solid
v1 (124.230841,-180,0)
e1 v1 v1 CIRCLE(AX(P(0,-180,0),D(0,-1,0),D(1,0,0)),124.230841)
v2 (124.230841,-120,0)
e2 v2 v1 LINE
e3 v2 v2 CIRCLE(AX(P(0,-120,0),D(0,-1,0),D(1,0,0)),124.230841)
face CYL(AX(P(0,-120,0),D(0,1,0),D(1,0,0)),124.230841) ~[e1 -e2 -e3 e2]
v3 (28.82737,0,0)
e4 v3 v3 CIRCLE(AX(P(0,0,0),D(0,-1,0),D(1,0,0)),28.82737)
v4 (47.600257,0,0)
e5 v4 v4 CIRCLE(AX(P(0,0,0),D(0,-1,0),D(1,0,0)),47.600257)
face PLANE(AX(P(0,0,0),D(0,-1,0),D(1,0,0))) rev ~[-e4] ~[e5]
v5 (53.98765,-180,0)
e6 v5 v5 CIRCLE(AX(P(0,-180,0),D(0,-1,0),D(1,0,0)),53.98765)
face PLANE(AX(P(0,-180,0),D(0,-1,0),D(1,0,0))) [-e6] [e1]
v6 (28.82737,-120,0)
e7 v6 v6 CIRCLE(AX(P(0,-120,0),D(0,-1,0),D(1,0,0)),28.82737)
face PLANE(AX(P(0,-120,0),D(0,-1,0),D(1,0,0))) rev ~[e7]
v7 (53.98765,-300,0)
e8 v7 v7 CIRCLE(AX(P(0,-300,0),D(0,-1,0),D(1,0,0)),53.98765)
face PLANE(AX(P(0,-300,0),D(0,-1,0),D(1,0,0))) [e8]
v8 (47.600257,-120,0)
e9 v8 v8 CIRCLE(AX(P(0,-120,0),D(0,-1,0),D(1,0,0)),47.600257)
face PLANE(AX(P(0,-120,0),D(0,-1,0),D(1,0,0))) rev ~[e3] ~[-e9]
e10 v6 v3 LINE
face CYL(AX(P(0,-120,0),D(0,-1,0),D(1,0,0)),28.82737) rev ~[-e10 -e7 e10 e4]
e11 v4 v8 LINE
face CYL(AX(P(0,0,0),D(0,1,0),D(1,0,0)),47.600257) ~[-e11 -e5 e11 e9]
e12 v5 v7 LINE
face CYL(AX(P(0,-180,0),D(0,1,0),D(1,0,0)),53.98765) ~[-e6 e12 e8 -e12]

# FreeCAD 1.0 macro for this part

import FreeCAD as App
import Part
import Sketcher

doc = App.newDocument("Part")
body = doc.addObject("PartDesign::Body", "Body")

# Sketch on XZ plane
sketch1 = body.newObject("Sketcher::SketchObject", "Sketch")
sketch1.AttachmentSupport = (doc.getObject("XZ_Plane"), [""])
sketch1.MapMode = "FlatFace"
sketch1.addGeometry(Part.Circle(App.Vector(0, 0, 0), App.Vector(0, 0, 1), 47.600257), False)
sketch1.addConstraint([
    Sketcher.Constraint("Coincident", 0, 3, -1, 1),
    Sketcher.Constraint("Diameter", 0, 95.200514),
])
pad1 = body.newObject("PartDesign::Pad", "Pad")
pad1.Profile = sketch1
pad1.Length = 120

# Sketch on XZ plane
sketch2 = body.newObject("Sketcher::SketchObject", "Sketch001")
sketch2.AttachmentSupport = (doc.getObject("XZ_Plane"), [""])
sketch2.MapMode = "FlatFace"
sketch2.AttachmentOffset = App.Placement(App.Vector(0, 0, 120), App.Rotation())
sketch2.addGeometry(Part.Circle(App.Vector(0, 0, 0), App.Vector(0, 0, 1), 28.82737), False)
sketch2.addConstraint([
    Sketcher.Constraint("Coincident", 0, 3, -1, 1),
    Sketcher.Constraint("Diameter", 0, 57.65474),
])
pocket1 = body.newObject("PartDesign::Pocket", "Pocket")
pocket1.Profile = sketch2
pocket1.Type = "ThroughAll"

# Sketch on XZ plane
sketch3 = body.newObject("Sketcher::SketchObject", "Sketch002")
sketch3.AttachmentSupport = (doc.getObject("XZ_Plane"), [""])
sketch3.MapMode = "FlatFace"
sketch3.AttachmentOffset = App.Placement(App.Vector(0, 0, 120), App.Rotation())
sketch3.addGeometry(Part.Circle(App.Vector(0, 0, 0), App.Vector(0, 0, 1), 124.230841), False)
sketch3.addConstraint([
    Sketcher.Constraint("Coincident", 0, 3, -1, 1),
    Sketcher.Constraint("Diameter", 0, 248.461682),
])
pad2 = body.newObject("PartDesign::Pad", "Pad001")
pad2.Profile = sketch3
pad2.Length = 60

# Sketch on XZ plane
sketch4 = body.newObject("Sketcher::SketchObject", "Sketch003")
sketch4.AttachmentSupport = (doc.getObject("XZ_Plane"), [""])
sketch4.MapMode = "FlatFace"
sketch4.AttachmentOffset = App.Placement(App.Vector(0, 0, 180), App.Rotation())
sketch4.addGeometry(Part.Circle(App.Vector(0, 0, 0), App.Vector(0, 0, 1), 53.98765), False)
sketch4.addConstraint([
    Sketcher.Constraint("Coincident", 0, 3, -1, 1),
    Sketcher.Constraint("Diameter", 0, 107.9753),
])
pad3 = body.newObject("PartDesign::Pad", "Pad002")
pad3.Profile = sketch4
pad3.Length = 120

doc.recompute()
